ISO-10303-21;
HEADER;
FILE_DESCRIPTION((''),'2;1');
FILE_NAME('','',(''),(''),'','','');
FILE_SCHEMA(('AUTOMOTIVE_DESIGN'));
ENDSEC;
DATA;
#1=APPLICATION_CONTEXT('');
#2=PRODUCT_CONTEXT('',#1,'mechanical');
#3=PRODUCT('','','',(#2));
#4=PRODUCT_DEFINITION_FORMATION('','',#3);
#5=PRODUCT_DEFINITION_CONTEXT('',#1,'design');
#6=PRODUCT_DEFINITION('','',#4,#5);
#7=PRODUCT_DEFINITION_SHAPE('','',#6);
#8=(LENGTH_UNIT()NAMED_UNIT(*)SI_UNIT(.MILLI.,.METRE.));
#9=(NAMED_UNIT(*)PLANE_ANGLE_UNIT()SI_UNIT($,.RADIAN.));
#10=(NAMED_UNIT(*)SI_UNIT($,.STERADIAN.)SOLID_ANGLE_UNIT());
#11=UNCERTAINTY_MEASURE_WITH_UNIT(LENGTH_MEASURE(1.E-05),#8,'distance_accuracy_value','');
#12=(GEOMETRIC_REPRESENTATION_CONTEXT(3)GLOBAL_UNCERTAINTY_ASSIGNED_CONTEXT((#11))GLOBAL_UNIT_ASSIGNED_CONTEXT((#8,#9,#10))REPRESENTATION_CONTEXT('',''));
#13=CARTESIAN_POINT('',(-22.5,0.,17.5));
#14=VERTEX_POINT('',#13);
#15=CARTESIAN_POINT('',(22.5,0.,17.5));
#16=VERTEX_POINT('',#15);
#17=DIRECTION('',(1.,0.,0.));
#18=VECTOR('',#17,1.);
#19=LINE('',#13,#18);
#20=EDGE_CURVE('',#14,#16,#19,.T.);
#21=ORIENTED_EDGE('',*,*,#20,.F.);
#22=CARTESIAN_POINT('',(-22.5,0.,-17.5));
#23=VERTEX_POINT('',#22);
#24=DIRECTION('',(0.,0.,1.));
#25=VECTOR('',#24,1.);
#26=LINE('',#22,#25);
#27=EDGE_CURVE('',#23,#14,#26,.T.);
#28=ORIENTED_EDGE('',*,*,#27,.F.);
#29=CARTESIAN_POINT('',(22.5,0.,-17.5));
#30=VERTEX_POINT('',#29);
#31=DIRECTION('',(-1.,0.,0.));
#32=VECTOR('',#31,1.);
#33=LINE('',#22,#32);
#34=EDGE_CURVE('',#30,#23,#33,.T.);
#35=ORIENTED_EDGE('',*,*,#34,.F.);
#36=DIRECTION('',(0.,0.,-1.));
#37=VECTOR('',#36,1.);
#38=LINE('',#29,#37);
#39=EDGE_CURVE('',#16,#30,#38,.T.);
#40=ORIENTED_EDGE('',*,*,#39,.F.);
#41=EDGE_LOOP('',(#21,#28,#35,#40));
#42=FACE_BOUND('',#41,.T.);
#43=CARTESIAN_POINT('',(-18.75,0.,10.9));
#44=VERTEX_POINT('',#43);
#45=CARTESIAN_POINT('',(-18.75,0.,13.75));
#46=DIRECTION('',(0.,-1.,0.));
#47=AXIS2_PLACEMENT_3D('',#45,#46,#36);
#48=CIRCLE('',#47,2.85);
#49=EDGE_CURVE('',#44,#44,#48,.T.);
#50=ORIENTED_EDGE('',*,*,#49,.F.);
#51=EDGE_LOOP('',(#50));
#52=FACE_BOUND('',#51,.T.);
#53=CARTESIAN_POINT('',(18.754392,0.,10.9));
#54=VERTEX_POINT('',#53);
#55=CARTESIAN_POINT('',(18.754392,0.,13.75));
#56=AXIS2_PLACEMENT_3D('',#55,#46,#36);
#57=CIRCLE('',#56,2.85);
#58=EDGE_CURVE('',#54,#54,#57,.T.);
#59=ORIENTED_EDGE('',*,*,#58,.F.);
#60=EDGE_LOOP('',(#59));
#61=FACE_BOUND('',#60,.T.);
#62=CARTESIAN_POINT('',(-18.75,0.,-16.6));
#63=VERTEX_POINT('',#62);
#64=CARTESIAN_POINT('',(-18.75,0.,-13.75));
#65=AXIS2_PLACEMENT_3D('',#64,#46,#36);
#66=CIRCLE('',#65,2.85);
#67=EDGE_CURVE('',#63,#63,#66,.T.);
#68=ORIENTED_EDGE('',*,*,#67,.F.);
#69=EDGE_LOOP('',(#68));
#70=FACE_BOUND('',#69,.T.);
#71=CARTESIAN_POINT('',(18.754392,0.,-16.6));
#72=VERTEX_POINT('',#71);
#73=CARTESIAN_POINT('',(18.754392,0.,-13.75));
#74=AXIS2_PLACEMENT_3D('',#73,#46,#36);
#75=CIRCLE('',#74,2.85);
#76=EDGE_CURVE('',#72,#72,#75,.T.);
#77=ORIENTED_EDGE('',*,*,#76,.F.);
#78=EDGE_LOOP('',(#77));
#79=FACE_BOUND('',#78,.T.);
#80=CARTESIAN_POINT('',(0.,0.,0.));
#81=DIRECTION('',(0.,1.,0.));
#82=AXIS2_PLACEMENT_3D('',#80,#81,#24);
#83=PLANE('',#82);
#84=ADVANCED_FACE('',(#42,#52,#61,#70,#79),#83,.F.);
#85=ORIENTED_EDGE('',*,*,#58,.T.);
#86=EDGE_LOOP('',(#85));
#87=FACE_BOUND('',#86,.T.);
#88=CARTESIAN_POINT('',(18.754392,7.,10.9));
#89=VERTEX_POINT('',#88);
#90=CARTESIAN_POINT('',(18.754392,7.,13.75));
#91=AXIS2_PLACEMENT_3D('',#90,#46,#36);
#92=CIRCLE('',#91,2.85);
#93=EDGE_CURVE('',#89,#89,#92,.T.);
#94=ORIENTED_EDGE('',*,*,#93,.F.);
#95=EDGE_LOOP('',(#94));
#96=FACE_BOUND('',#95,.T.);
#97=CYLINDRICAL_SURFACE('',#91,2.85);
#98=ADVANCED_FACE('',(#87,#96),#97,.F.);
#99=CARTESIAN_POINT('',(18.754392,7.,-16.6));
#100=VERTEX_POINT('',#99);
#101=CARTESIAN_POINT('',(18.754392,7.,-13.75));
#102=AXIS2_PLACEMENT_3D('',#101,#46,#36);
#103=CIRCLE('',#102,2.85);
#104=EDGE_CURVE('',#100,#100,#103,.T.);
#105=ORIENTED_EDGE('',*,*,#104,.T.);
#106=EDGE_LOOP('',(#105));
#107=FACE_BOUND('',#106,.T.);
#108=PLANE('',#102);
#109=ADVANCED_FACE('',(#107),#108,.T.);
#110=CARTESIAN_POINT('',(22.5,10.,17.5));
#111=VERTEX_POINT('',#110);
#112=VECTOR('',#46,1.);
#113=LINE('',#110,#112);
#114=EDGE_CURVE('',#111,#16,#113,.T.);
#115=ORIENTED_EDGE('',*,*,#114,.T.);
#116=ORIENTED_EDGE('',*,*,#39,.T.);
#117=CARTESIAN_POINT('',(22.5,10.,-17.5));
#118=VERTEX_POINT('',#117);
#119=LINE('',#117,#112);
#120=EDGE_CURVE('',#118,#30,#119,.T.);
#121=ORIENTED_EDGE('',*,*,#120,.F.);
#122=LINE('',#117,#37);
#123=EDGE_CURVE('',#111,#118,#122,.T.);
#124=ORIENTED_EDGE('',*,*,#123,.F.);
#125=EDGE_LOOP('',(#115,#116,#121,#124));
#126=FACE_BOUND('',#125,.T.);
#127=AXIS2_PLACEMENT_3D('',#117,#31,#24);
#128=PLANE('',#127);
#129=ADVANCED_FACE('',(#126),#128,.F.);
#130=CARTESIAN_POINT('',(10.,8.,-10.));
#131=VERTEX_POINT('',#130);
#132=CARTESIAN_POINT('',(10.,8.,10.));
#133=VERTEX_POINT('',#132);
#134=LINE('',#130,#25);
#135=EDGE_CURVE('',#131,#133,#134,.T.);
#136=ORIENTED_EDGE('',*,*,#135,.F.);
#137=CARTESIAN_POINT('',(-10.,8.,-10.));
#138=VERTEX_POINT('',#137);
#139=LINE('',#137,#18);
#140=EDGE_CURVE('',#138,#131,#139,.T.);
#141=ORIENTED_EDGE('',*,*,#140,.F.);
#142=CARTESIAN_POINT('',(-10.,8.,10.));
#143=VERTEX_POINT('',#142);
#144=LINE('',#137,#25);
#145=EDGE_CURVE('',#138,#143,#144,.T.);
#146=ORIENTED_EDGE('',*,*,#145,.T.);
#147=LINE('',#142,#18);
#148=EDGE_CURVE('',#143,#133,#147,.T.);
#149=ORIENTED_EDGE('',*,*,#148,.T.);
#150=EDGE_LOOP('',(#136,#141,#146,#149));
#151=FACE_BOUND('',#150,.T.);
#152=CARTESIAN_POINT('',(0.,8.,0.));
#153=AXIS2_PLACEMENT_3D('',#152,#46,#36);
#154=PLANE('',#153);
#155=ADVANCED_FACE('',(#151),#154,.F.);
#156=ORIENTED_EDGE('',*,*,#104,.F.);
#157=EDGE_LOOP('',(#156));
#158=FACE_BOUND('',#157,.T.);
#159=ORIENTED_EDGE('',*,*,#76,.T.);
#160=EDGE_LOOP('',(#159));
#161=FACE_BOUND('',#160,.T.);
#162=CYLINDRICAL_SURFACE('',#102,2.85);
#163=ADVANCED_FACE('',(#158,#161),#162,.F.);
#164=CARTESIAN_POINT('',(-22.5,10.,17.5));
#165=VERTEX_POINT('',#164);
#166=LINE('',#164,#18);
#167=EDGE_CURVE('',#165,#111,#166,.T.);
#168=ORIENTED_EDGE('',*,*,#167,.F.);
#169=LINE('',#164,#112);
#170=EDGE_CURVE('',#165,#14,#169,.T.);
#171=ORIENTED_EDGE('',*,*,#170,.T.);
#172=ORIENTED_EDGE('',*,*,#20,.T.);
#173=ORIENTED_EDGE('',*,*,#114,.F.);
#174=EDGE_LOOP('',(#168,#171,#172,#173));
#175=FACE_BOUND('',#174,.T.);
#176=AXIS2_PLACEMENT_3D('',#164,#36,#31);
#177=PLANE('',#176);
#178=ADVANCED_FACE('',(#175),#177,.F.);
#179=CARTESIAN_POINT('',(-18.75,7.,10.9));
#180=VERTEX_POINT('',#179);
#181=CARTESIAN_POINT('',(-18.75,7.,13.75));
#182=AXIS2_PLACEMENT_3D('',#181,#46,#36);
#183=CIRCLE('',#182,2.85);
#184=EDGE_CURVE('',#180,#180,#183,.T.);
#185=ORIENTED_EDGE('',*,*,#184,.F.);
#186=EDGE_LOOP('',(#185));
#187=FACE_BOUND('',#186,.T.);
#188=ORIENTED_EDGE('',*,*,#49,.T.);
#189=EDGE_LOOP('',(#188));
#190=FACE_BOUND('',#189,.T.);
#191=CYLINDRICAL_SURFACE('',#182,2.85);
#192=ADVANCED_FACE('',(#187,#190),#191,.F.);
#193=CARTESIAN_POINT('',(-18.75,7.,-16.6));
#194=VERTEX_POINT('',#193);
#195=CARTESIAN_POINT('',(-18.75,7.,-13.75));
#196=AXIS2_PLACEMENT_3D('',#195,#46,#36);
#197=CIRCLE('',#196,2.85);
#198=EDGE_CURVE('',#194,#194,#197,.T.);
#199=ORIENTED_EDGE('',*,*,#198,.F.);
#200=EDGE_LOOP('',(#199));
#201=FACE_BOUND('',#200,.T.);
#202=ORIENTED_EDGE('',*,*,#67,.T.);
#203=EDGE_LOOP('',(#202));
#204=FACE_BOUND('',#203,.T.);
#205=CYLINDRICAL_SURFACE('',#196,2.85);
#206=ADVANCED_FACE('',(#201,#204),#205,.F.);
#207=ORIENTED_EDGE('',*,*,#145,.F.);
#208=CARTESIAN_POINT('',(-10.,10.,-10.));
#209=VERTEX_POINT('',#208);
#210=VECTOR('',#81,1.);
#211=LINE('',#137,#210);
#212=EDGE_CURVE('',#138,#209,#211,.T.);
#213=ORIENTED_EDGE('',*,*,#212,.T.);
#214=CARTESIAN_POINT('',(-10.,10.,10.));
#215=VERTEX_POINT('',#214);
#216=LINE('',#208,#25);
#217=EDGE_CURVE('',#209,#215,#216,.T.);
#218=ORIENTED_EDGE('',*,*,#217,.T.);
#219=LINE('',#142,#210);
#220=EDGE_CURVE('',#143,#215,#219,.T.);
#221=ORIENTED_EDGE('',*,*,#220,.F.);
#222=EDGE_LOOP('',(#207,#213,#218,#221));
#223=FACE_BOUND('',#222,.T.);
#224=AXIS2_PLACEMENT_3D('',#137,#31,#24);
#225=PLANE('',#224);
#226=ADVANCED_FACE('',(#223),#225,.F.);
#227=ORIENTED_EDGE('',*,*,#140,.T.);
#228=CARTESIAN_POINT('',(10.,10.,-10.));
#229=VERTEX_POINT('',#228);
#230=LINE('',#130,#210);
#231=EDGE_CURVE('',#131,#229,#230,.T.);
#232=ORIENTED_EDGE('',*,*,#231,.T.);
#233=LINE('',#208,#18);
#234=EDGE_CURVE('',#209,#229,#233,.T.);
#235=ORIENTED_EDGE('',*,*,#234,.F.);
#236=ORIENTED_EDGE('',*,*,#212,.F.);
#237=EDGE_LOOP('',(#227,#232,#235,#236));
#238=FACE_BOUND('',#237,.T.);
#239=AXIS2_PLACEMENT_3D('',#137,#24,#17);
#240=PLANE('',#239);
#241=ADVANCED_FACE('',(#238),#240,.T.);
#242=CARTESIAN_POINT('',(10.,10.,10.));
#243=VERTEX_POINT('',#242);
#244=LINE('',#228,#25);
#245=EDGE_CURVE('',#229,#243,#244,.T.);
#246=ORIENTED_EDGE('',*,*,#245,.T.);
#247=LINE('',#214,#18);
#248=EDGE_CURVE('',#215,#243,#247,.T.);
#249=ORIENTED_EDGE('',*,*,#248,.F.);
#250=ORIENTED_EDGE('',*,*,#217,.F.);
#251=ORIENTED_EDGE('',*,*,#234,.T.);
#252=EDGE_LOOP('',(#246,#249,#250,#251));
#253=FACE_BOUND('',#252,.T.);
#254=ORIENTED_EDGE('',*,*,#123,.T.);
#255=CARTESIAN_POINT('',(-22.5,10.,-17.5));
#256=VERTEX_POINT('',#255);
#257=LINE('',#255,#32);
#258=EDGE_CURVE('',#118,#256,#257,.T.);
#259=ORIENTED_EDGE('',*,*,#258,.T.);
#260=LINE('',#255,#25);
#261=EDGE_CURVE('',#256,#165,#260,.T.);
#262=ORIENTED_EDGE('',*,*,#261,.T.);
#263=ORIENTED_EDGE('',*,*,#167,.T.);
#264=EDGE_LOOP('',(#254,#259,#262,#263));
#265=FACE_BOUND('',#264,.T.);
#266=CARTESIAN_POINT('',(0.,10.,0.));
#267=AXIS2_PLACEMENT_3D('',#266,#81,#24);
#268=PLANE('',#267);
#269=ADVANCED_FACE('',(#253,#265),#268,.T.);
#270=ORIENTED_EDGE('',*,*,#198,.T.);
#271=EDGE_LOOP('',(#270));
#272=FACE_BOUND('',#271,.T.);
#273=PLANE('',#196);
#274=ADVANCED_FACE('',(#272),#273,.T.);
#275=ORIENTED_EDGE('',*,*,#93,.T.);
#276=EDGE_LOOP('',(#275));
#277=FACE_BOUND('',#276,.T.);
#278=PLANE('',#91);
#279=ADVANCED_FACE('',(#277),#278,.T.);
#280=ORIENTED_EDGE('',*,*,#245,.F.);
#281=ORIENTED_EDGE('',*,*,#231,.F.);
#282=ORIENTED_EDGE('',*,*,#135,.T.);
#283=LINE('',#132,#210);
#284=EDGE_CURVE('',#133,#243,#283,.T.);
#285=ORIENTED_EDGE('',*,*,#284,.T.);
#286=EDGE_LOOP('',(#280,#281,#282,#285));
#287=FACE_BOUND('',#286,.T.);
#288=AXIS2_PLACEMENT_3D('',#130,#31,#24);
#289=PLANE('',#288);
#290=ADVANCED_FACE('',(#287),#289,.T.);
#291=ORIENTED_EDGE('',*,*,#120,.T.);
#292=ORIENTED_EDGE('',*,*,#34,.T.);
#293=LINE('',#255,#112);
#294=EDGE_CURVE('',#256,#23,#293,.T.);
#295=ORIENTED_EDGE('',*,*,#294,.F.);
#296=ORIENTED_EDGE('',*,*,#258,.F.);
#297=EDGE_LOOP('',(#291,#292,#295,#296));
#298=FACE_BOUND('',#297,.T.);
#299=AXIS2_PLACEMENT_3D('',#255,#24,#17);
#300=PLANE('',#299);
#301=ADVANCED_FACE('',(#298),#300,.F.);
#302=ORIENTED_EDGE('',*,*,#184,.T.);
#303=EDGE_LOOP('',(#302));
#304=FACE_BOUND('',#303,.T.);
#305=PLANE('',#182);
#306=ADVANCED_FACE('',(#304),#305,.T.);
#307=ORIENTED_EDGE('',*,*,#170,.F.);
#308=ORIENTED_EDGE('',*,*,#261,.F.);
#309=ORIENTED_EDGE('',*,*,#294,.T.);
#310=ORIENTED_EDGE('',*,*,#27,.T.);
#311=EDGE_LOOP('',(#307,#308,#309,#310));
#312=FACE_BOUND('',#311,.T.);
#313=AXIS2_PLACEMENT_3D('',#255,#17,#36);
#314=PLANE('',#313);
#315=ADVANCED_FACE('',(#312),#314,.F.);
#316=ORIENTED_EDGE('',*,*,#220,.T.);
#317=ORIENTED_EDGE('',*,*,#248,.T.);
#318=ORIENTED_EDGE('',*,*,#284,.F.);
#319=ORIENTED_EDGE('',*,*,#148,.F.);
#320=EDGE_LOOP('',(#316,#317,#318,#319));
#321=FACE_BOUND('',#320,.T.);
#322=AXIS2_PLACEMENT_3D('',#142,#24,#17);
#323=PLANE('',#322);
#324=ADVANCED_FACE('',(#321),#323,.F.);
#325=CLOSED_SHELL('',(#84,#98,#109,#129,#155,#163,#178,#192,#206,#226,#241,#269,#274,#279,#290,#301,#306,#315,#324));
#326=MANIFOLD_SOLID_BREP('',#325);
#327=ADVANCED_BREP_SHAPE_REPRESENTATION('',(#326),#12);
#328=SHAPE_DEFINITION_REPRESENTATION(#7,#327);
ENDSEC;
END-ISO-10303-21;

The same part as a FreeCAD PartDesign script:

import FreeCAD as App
import Part
import Sketcher
from FreeCAD import Vector
Q = App.Units.Quantity

doc = App.newDocument("Part")
params = doc.addObject("Spreadsheet::Sheet", "Params")
for row, (alias, value) in enumerate([
    ("sketch1_width", "45 mm"),
    ("sketch1_height", "35 mm"),
    ("pad1_length", "10 mm"),
    ("sketch2_width", "20 mm"),
    ("pocket1_length", "2 mm"),
    ("sketch3_diameter", "5.7 mm"),
    ("pocket2_length", "7 mm"),
], start=1):
    params.set(f"A{row}", alias)
    params.set(f"B{row}", "=" + value)
    params.setAlias(f"B{row}", alias)

body = doc.addObject("PartDesign::Body", "Body")

# Sketch on XZ plane
sketch1 = body.newObject("Sketcher::SketchObject", "Sketch")
sketch1.AttachmentSupport = (doc.getObject("XZ_Plane"), [""])
sketch1.MapMode = "FlatFace"
sketch1.addGeometry([
    Part.LineSegment(Vector(-22, -18, 0), Vector(-22, 18, 0)),
    Part.LineSegment(Vector(-22, 18, 0), Vector(22, 18, 0)),
    Part.LineSegment(Vector(22, 18, 0), Vector(22, -18, 0)),
    Part.LineSegment(Vector(22, -18, 0), Vector(-22, -18, 0)),
], False)
sketch1.addConstraint([
    Sketcher.Constraint("Coincident", 0, 2, 1, 1),
    Sketcher.Constraint("Coincident", 1, 2, 2, 1),
    Sketcher.Constraint("Coincident", 2, 2, 3, 1),
    Sketcher.Constraint("Coincident", 3, 2, 0, 1),
    Sketcher.Constraint("Vertical", 0),
    Sketcher.Constraint("Horizontal", 1),
    Sketcher.Constraint("Vertical", 2),
    Sketcher.Constraint("Horizontal", 3),
    Sketcher.Constraint("Symmetric", 0, 2, 2, 2, -1, 1),
    Sketcher.Constraint("DistanceX", 1, 1, 1, 2, Q("45 mm")),
    Sketcher.Constraint("DistanceY", 0, 1, 0, 2, Q("35 mm")),
])
sketch1.setExpression("Constraints[9]", "Params.sketch1_width")
sketch1.setExpression("Constraints[10]", "Params.sketch1_height")
pad1 = body.newObject("PartDesign::Pad", "Pad")
pad1.Profile = sketch1
pad1.setExpression("Length", "Params.pad1_length")
pad1.Reversed = True

# Sketch on XZ plane
sketch2 = body.newObject("Sketcher::SketchObject", "Sketch001")
sketch2.AttachmentSupport = (doc.getObject("XZ_Plane"), [""])
sketch2.MapMode = "FlatFace"
sketch2.AttachmentOffset = App.Placement(Vector(0, 0, -10), App.Rotation())
sketch2.addGeometry([
    Part.LineSegment(Vector(-10, -10, 0), Vector(-10, 10, 0)),
    Part.LineSegment(Vector(-10, 10, 0), Vector(10, 10, 0)),
    Part.LineSegment(Vector(10, 10, 0), Vector(10, -10, 0)),
    Part.LineSegment(Vector(10, -10, 0), Vector(-10, -10, 0)),
], False)
sketch2.addConstraint([
    Sketcher.Constraint("Coincident", 0, 2, 1, 1),
    Sketcher.Constraint("Coincident", 1, 2, 2, 1),
    Sketcher.Constraint("Coincident", 2, 2, 3, 1),
    Sketcher.Constraint("Coincident", 3, 2, 0, 1),
    Sketcher.Constraint("Vertical", 0),
    Sketcher.Constraint("Horizontal", 1),
    Sketcher.Constraint("Vertical", 2),
    Sketcher.Constraint("Horizontal", 3),
    Sketcher.Constraint("Symmetric", 0, 2, 2, 2, -1, 1),
    Sketcher.Constraint("Equal", 3, 0),
    Sketcher.Constraint("DistanceX", 1, 1, 1, 2, Q("20 mm")),
])
sketch2.setExpression("Constraints[10]", "Params.sketch2_width")
pocket1 = body.newObject("PartDesign::Pocket", "Pocket")
pocket1.Profile = sketch2
pocket1.setExpression("Length", "Params.pocket1_length")
pocket1.Reversed = True

# Sketch on XZ plane
sketch3 = body.newObject("Sketcher::SketchObject", "Sketch002")
sketch3.AttachmentSupport = (doc.getObject("XZ_Plane"), [""])
sketch3.MapMode = "FlatFace"
sketch3.addGeometry([
    Part.Circle(Vector(-18.8, 13.8, 0), Vector(0, 0, 1), 2.9),
    Part.Circle(Vector(18.8, 13.8, 0), Vector(0, 0, 1), 2.9),
    Part.Circle(Vector(18.8, -13.8, 0), Vector(0, 0, 1), 2.9),
    Part.Circle(Vector(-18.8, -13.8, 0), Vector(0, 0, 1), 2.9),
], False)
sketch3.addConstraint([
    Sketcher.Constraint("Equal", 0, 1),
    Sketcher.Constraint("Equal", 1, 2),
    Sketcher.Constraint("Equal", 2, 3),
    Sketcher.Constraint("Symmetric", 1, 3, 2, 3, -1),
    Sketcher.Constraint("Symmetric", 0, 3, 3, 3, -1),
    Sketcher.Constraint("Horizontal", 0, 3, 1, 3),
    Sketcher.Constraint("Diameter", 0, Q("5.7 mm")),
    Sketcher.Constraint("DistanceY", 2, 3, 1, 3, Q("27.5 mm")),
    Sketcher.Constraint("DistanceX", 0, 3, -1, 1, Q("18.75 mm")),
    Sketcher.Constraint("DistanceX", -1, 1, 1, 3, Q("18.754392 mm")),
])
sketch3.setExpression("Constraints[6]", "Params.sketch3_diameter")
pocket2 = body.newObject("PartDesign::Pocket", "Pocket001")
pocket2.Profile = sketch3
pocket2.setExpression("Length", "Params.pocket2_length")

doc.recompute()
